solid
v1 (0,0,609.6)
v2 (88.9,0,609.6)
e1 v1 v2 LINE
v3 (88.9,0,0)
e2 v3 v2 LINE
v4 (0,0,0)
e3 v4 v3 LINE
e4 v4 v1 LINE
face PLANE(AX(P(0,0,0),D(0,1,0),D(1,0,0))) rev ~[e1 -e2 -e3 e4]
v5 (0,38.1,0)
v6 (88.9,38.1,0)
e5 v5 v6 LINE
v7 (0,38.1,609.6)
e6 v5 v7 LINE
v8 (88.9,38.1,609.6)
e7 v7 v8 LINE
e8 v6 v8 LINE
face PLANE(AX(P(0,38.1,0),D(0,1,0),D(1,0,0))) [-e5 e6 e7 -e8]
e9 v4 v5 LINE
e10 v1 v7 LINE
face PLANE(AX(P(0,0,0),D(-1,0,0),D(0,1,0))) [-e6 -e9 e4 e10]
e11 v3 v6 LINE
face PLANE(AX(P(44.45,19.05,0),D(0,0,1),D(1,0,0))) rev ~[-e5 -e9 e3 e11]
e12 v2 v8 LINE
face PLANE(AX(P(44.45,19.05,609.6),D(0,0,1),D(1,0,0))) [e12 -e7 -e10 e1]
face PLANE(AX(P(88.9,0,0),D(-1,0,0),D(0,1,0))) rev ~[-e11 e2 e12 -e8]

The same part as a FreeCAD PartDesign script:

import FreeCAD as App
import Part
import Sketcher
Q = App.Units.Quantity


def add_polygon(sketch, points):
    """Adds a closed chain of lines whose ends are joined by coincident constraints."""
    first, n = sketch.GeometryCount, len(points)
    for a, b in zip(points, points[1:] + points[:1]):
        sketch.addGeometry(Part.LineSegment(App.Vector(*a, 0), App.Vector(*b, 0)), False)
    for i in range(n):
        sketch.addConstraint(Sketcher.Constraint("Coincident", first + i, 2, first + (i + 1) % n, 1))

doc = App.newDocument("Part")
body = doc.addObject("PartDesign::Body", "Body")

# Sketch on XY plane
sketch1 = body.newObject("Sketcher::SketchObject", "Sketch")
sketch1.AttachmentSupport = (doc.getObject("XY_Plane"), [""])
sketch1.MapMode = "FlatFace"
add_polygon(sketch1, [(0, 38.1), (0, 0), (88.9, 0), (88.9, 38.1)])  # lines 0-3
sketch1.addConstraint([
    Sketcher.Constraint("Vertical", 0),
    Sketcher.Constraint("Horizontal", 1),
    Sketcher.Constraint("Vertical", 2),
    Sketcher.Constraint("Horizontal", 3),
    Sketcher.Constraint("Coincident", 0, 2, -1, 1),
    Sketcher.Constraint("DistanceX", 1, 1, 1, 2, Q("3.5 in")),
    Sketcher.Constraint("DistanceY", 0, 2, 0, 1, Q("1.5 in")),
])
pad1 = body.newObject("PartDesign::Pad", "Pad")
pad1.Profile = sketch1
pad1.Length = Q("24 in")

doc.recompute()
